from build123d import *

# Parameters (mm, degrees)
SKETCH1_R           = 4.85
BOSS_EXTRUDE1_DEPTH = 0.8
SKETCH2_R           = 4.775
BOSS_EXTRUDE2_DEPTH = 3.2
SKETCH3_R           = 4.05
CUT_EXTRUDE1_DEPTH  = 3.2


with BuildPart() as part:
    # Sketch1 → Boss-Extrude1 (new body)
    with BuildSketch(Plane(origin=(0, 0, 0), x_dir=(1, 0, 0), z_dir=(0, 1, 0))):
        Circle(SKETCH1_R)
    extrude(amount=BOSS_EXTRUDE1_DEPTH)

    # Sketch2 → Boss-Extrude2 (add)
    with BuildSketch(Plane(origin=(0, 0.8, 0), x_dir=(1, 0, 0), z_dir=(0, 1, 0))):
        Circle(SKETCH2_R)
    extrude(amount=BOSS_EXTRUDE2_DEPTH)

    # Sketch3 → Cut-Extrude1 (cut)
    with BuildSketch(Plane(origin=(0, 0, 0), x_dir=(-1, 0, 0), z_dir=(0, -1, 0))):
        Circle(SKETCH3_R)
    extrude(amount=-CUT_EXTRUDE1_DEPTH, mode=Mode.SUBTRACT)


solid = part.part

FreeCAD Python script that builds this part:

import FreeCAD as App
import Part
import Sketcher

doc = App.newDocument("Part")
body = doc.addObject("PartDesign::Body", "Body")

# Sketch on XZ plane
sketch1 = body.newObject("Sketcher::SketchObject", "Sketch")
sketch1.AttachmentSupport = (doc.getObject("XZ_Plane"), [""])
sketch1.MapMode = "FlatFace"
sketch1.addGeometry(Part.Circle(App.Vector(0, 0, 0), App.Vector(0, 0, 1), 4.8), False)
sketch1.addConstraint(Sketcher.Constraint("Coincident", 0, 3, -1, 1))
sketch1.addConstraint(Sketcher.Constraint("Diameter", 0, 9.7))
pad1 = body.newObject("PartDesign::Pad", "Pad")
pad1.Profile = sketch1
pad1.Length = 0.8
pad1.Reversed = True

# Sketch on XZ plane
sketch2 = body.newObject("Sketcher::SketchObject", "Sketch001")
sketch2.AttachmentSupport = (doc.getObject("XZ_Plane"), [""])
sketch2.MapMode = "FlatFace"
sketch2.AttachmentOffset = App.Placement(App.Vector(0, 0, -0.8), App.Rotation())
sketch2.addGeometry(Part.Circle(App.Vector(0, 0, 0), App.Vector(0, 0, 1), 4.8), False)
sketch2.addConstraint(Sketcher.Constraint("Coincident", 0, 3, -1, 1))
sketch2.addConstraint(Sketcher.Constraint("Diameter", 0, 9.55))
pad2 = body.newObject("PartDesign::Pad", "Pad001")
pad2.Profile = sketch2
pad2.Length = 3.2
pad2.Reversed = True

# Sketch on XZ plane
sketch3 = body.newObject("Sketcher::SketchObject", "Sketch002")
sketch3.AttachmentSupport = (doc.getObject("XZ_Plane"), [""])
sketch3.MapMode = "FlatFace"
sketch3.addGeometry(Part.Circle(App.Vector(0, 0, 0), App.Vector(0, 0, 1), 4), False)
sketch3.addConstraint(Sketcher.Constraint("Coincident", 0, 3, -1, 1))
sketch3.addConstraint(Sketcher.Constraint("Diameter", 0, 8.1))
pocket1 = body.newObject("PartDesign::Pocket", "Pocket")
pocket1.Profile = sketch3
pocket1.Length = 3.2

doc.recompute()
